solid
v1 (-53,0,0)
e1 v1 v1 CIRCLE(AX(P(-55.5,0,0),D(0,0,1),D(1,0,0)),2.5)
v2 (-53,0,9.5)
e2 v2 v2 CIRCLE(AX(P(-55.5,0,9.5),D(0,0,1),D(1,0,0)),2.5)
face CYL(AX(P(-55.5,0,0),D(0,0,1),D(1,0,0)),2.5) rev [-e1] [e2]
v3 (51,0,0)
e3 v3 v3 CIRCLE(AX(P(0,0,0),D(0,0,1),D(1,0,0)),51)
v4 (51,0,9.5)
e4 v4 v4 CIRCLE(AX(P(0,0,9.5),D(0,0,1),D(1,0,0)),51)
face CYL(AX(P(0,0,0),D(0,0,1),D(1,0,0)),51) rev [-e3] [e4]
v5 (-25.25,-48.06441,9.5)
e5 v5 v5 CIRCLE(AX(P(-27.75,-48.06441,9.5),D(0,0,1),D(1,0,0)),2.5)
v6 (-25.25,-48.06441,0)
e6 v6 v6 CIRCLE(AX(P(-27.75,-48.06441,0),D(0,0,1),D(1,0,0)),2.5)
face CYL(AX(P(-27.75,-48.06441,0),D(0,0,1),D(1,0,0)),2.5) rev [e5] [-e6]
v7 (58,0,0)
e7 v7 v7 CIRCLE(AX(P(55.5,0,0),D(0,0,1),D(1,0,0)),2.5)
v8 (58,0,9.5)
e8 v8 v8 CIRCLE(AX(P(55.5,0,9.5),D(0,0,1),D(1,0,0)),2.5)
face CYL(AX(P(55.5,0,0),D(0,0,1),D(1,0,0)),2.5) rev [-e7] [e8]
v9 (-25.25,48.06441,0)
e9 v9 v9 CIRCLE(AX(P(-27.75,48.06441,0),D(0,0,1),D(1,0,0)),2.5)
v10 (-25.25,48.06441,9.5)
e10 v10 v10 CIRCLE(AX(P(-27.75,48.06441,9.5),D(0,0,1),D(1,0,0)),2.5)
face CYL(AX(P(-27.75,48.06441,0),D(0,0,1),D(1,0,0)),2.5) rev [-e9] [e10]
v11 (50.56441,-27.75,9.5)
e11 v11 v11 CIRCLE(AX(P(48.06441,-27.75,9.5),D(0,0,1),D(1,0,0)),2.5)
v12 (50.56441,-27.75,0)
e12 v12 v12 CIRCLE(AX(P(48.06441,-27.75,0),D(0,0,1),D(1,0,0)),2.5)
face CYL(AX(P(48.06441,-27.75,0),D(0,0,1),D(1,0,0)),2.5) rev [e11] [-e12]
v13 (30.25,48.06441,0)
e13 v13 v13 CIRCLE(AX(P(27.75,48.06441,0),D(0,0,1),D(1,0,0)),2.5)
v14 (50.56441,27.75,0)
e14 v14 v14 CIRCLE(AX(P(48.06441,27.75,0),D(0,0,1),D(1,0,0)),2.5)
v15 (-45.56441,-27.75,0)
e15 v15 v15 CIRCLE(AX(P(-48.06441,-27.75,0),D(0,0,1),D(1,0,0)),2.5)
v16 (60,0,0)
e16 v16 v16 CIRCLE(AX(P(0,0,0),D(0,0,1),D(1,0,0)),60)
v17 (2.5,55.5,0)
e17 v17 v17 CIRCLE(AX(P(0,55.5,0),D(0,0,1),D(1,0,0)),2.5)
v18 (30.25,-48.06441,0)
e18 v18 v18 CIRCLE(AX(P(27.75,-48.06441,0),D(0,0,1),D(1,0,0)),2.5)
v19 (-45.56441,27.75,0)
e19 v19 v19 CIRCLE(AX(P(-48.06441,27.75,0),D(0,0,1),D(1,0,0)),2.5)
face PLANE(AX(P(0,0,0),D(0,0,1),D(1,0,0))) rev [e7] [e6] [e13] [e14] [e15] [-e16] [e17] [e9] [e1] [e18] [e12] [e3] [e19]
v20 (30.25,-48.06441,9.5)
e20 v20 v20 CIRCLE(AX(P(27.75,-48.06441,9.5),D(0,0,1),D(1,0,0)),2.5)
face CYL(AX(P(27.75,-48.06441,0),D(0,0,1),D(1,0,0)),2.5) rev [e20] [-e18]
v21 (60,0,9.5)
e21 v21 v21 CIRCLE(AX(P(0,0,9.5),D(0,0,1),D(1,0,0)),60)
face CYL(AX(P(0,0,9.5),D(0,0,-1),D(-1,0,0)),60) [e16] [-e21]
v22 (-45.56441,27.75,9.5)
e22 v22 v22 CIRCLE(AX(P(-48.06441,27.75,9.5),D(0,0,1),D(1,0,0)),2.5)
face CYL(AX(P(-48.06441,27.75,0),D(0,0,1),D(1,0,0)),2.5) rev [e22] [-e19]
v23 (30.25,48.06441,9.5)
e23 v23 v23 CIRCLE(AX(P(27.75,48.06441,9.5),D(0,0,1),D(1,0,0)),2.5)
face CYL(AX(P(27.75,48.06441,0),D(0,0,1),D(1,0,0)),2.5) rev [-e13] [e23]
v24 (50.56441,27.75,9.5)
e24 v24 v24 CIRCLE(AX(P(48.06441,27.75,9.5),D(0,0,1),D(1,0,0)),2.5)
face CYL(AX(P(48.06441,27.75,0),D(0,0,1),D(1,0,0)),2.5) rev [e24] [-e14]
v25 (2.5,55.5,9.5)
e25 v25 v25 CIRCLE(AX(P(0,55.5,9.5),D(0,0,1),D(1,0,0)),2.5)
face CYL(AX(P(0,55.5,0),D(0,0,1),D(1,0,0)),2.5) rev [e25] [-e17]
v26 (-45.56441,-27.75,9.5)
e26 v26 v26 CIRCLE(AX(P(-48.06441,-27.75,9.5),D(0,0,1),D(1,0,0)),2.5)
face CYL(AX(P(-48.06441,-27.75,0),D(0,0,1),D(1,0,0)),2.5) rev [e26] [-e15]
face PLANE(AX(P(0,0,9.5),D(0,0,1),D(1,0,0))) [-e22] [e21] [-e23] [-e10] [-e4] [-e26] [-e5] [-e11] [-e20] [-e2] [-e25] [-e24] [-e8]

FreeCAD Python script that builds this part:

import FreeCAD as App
import Part
import Sketcher

V = App.Vector

doc = App.newDocument("Part")
body = doc.addObject("PartDesign::Body", "Body")

sketch1 = body.newObject("Sketcher::SketchObject", "Sketch")
sketch1.AttachmentSupport = (doc.getObject("XY_Plane"), [""])
sketch1.MapMode = "FlatFace"
sketch1.addGeometry(Part.Circle(V(0, 0, 0), V(0, 0, 1), 60), False)
sketch1.addConstraint([
    Sketcher.Constraint("Coincident", 0, 3, -1, 1),
    Sketcher.Constraint("Diameter", 0, 120.0),
])
pad1 = body.newObject("PartDesign::Pad", "Pad")
pad1.Profile = sketch1
pad1.Length = 9.5

sketch2 = body.newObject("Sketcher::SketchObject", "Sketch001")
sketch2.AttachmentSupport = (doc.getObject("XY_Plane"), [""])
sketch2.MapMode = "FlatFace"
sketch2.AttachmentOffset = App.Placement(V(0, 0, 9.5), App.Rotation())
sketch2.addGeometry([
    Part.Circle(V(0, 0, 0), V(0, 0, 1), 51),
    Part.Circle(V(0, 55.5, 0), V(0, 0, 1), 2.5),
    Part.Circle(V(27.8, 48.1, 0), V(0, 0, 1), 2.5),
    Part.Circle(V(48.1, 27.8, 0), V(0, 0, 1), 2.5),
    Part.Circle(V(55.5, 0, 0), V(0, 0, 1), 2.5),
    Part.Circle(V(48.1, -27.8, 0), V(0, 0, 1), 2.5),
    Part.Circle(V(27.8, -48.1, 0), V(0, 0, 1), 2.5),
    Part.Circle(V(-27.8, -48.1, 0), V(0, 0, 1), 2.5),
    Part.Circle(V(-48.1, -27.8, 0), V(0, 0, 1), 2.5),
    Part.Circle(V(-55.5, 0, 0), V(0, 0, 1), 2.5),
    Part.Circle(V(-48.1, 27.8, 0), V(0, 0, 1), 2.5),
    Part.Circle(V(-27.8, 48.1, 0), V(0, 0, 1), 2.5),
], False)
sketch2.addConstraint([
    Sketcher.Constraint("Coincident", 0, 3, -1, 1),
    Sketcher.Constraint("Equal", 1, 2),
    Sketcher.Constraint("Equal", 2, 3),
    Sketcher.Constraint("Equal", 3, 4),
    Sketcher.Constraint("Equal", 4, 5),
    Sketcher.Constraint("Equal", 5, 6),
    Sketcher.Constraint("Equal", 6, 7),
    Sketcher.Constraint("Equal", 7, 8),
    Sketcher.Constraint("Equal", 8, 9),
    Sketcher.Constraint("Equal", 9, 10),
    Sketcher.Constraint("Equal", 10, 11),
    Sketcher.Constraint("Symmetric", 2, 3, 7, 3, -1, 1),
    Sketcher.Constraint("Symmetric", 3, 3, 8, 3, -1, 1),
    Sketcher.Constraint("Symmetric", 4, 3, 9, 3, -1, 1),
    Sketcher.Constraint("Symmetric", 5, 3, 10, 3, -1, 1),
    Sketcher.Constraint("Symmetric", 6, 3, 11, 3, -1, 1),
    Sketcher.Constraint("Symmetric", 6, 3, 7, 3, -2),
    Sketcher.Constraint("Symmetric", 5, 3, 8, 3, -2),
    Sketcher.Constraint("PointOnObject", 1, 3, -2),
    Sketcher.Constraint("PointOnObject", 4, 3, -1),
    Sketcher.Constraint("Diameter", 0, 102.0),
    Sketcher.Constraint("Diameter", 1, 5.0),
    Sketcher.Constraint("DistanceY", -1, 1, 1, 3, 55.5),
    Sketcher.Constraint("DistanceX", -1, 1, 4, 3, 55.5),
    Sketcher.Constraint("DistanceY", 5, 3, 3, 3, 55.5),
    Sketcher.Constraint("DistanceX", 7, 3, 6, 3, 55.5),
    Sketcher.Constraint("DistanceY", -1, 1, 2, 3, 48.06441),
    Sketcher.Constraint("DistanceX", -1, 1, 3, 3, 48.06441),
])
pocket1 = body.newObject("PartDesign::Pocket", "Pocket")
pocket1.Profile = sketch2
pocket1.Type = "ThroughAll"

doc.recompute()
